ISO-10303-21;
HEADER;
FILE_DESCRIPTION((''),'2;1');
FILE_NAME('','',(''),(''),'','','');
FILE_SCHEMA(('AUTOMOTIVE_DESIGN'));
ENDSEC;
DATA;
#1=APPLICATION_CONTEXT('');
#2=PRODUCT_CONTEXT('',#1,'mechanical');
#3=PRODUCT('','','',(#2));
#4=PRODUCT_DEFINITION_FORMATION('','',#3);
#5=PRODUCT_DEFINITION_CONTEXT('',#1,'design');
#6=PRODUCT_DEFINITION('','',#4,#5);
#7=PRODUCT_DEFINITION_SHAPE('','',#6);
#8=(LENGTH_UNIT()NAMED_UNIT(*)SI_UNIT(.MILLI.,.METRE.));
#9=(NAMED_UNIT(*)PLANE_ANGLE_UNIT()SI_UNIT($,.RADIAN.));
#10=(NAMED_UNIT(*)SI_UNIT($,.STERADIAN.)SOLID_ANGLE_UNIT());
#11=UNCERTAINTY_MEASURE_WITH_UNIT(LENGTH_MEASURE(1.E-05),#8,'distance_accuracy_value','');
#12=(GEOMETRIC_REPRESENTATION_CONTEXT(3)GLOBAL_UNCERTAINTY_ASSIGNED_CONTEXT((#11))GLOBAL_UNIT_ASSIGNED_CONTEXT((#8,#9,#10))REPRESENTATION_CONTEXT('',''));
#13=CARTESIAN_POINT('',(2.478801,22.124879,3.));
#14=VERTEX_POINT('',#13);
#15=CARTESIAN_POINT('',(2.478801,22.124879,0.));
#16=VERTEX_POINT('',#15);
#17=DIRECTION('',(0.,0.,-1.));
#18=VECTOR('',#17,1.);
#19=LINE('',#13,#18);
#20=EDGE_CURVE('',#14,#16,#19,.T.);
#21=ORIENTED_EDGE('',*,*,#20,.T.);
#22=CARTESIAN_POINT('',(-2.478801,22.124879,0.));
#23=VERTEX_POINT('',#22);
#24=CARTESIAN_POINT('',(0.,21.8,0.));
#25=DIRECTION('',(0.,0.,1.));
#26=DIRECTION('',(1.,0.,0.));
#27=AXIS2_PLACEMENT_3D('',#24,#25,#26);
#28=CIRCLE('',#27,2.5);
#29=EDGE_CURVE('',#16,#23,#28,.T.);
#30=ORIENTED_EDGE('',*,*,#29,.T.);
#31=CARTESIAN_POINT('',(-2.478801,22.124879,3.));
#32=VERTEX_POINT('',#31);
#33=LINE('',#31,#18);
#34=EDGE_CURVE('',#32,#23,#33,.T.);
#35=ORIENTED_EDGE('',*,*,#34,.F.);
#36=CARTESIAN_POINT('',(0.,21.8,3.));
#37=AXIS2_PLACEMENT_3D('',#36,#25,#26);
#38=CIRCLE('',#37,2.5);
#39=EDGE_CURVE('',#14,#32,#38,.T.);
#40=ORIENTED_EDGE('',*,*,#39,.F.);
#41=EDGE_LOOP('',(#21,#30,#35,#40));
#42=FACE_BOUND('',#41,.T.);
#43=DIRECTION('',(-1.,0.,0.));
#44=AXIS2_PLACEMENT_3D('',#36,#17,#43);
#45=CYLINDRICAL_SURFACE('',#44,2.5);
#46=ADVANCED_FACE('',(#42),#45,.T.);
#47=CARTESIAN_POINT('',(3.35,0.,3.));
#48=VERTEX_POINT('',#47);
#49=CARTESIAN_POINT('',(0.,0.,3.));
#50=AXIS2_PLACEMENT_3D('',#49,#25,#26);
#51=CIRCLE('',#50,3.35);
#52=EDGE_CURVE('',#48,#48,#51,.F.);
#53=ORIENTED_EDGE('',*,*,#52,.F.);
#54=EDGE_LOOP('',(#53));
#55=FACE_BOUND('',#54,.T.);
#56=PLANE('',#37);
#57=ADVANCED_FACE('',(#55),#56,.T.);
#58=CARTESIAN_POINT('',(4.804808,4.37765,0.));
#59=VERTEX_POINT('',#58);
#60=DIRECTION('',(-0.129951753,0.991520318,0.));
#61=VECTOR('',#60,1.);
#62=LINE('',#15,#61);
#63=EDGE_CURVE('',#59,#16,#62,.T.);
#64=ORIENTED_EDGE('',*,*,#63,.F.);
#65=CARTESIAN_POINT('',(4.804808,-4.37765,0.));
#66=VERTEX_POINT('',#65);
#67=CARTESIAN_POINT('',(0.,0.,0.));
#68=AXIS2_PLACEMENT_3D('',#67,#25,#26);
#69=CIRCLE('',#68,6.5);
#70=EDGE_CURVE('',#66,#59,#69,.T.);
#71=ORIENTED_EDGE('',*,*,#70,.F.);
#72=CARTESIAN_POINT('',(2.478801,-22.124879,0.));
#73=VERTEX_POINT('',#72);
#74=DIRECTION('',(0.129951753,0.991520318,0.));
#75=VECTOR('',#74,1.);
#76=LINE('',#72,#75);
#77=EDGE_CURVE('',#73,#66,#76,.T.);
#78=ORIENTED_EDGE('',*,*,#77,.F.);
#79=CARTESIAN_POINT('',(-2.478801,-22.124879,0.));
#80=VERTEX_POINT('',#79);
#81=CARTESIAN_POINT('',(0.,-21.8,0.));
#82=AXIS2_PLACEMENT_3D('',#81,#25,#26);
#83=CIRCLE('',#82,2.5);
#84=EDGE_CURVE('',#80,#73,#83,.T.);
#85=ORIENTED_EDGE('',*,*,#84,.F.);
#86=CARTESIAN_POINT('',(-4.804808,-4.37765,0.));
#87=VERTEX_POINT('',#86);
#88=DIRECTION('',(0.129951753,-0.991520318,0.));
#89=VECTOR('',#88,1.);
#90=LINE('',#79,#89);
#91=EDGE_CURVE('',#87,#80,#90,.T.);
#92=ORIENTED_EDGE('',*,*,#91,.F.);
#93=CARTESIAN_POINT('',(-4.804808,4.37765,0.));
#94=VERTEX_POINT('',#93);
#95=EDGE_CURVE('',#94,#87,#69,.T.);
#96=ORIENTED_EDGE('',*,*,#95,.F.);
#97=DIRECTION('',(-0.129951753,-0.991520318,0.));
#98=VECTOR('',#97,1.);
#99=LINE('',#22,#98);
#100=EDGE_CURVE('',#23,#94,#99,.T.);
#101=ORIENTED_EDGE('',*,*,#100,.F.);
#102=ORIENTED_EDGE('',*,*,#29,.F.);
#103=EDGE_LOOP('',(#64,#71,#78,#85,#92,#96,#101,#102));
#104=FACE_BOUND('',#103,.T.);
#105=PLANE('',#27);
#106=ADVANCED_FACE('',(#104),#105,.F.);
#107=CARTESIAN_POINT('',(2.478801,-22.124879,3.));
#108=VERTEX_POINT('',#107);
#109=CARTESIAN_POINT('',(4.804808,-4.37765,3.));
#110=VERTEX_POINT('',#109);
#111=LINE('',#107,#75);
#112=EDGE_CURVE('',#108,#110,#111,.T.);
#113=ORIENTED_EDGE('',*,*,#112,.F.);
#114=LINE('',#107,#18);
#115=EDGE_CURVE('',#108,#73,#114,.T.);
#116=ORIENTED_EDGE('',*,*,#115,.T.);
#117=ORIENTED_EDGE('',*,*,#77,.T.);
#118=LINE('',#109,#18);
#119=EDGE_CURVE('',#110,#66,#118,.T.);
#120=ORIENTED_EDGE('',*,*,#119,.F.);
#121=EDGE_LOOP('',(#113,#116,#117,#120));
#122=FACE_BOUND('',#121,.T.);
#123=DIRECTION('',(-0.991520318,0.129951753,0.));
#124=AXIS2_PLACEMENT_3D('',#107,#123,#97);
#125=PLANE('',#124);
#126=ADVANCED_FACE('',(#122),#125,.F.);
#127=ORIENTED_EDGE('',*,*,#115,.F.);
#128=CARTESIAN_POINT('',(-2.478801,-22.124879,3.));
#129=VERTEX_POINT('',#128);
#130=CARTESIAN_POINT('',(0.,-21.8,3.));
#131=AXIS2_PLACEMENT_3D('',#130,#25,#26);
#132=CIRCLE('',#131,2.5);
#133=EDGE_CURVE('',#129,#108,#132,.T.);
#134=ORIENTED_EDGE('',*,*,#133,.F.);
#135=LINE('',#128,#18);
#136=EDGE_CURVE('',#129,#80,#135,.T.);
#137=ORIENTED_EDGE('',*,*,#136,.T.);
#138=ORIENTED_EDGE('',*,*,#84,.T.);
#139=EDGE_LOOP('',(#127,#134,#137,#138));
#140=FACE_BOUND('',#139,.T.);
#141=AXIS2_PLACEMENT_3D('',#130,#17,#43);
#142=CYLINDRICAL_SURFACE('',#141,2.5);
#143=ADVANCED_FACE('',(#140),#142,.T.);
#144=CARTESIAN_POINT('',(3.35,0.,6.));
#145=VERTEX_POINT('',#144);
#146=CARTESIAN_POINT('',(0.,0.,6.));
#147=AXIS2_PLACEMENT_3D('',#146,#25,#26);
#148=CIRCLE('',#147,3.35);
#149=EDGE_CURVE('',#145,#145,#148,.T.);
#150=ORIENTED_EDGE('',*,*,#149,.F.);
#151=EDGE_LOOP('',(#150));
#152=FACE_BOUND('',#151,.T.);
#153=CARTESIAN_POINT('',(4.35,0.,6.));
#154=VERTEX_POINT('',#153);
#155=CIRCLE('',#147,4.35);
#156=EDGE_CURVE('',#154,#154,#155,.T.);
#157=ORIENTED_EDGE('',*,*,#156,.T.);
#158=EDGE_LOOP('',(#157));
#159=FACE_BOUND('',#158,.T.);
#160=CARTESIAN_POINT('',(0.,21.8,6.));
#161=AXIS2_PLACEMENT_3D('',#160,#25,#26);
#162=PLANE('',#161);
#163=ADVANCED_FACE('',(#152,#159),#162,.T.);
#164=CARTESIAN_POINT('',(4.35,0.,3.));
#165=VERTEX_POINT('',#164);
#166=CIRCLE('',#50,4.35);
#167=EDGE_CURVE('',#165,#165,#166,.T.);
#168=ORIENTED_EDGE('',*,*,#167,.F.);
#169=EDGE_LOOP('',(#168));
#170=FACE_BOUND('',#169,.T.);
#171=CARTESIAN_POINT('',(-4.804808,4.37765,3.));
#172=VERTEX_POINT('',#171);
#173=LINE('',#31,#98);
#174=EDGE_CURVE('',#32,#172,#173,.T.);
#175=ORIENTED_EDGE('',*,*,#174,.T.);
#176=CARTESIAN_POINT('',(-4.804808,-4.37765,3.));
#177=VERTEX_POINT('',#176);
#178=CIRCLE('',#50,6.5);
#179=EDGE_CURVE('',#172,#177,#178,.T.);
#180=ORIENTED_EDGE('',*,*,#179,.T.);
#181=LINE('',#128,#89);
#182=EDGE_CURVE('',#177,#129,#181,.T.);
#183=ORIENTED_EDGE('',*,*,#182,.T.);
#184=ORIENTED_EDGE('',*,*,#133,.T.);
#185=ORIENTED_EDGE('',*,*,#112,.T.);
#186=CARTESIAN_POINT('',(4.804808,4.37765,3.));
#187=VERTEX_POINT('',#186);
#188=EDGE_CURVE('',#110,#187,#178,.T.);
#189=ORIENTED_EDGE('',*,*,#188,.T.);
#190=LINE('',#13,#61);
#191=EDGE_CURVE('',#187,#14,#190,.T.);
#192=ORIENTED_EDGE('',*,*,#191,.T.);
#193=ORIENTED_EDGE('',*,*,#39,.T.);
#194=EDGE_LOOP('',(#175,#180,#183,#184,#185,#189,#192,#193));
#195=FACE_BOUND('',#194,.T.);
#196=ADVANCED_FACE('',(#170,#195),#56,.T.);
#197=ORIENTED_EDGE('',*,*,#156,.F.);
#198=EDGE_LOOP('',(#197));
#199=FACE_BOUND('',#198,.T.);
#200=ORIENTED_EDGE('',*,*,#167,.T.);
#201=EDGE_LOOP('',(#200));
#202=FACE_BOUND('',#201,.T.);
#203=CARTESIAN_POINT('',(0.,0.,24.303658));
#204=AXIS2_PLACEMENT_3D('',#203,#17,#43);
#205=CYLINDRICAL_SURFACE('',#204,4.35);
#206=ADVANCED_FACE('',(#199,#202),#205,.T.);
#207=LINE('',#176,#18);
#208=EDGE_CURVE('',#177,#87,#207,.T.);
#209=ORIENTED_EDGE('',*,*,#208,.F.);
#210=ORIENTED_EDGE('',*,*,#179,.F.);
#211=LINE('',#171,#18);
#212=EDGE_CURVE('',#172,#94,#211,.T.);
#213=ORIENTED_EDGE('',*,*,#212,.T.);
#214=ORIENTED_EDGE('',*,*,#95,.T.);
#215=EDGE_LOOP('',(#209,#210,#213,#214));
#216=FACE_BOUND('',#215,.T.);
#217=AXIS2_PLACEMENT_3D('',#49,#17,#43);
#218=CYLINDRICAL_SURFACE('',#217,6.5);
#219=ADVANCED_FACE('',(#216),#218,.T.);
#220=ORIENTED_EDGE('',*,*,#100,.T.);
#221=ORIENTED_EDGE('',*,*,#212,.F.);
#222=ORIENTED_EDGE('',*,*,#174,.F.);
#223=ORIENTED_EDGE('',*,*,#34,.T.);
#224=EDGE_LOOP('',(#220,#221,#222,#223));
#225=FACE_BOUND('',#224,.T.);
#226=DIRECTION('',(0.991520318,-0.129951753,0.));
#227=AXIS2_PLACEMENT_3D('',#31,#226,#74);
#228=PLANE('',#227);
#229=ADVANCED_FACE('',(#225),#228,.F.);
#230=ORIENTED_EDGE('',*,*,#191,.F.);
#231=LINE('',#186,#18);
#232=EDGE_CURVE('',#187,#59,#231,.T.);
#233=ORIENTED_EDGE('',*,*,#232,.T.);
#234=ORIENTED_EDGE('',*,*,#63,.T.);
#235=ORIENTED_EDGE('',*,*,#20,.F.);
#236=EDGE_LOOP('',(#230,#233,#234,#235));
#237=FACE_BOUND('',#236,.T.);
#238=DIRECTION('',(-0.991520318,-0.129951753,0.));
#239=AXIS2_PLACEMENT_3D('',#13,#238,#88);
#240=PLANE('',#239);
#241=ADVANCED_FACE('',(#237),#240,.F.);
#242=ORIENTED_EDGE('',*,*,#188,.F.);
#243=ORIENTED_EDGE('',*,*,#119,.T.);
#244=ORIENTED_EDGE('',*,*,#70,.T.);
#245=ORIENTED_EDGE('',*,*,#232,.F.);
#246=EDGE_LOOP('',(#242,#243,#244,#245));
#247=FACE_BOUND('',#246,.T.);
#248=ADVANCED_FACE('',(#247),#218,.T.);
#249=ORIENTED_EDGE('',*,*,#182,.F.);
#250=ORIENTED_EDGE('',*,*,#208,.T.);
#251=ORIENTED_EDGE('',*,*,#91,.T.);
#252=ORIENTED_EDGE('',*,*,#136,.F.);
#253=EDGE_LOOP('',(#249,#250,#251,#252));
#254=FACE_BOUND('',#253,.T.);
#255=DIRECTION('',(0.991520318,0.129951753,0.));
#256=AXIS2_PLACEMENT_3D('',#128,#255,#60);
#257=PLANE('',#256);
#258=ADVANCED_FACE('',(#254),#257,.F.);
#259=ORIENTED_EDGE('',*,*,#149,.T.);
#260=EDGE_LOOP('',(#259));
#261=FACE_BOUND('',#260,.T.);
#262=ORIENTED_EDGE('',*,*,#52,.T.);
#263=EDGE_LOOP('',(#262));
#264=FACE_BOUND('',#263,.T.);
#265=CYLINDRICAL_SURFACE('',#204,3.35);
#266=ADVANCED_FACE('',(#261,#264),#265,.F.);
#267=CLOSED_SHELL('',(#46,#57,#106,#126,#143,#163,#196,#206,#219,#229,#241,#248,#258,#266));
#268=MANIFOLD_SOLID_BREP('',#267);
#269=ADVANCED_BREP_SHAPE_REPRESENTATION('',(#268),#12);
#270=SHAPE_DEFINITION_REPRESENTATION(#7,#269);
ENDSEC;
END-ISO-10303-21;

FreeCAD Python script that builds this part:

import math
import FreeCAD as App
import Part
import Sketcher
Q = App.Units.Quantity

doc = App.newDocument("Part")
body = doc.addObject("PartDesign::Body", "Body")

sketch1 = doc.addObject("Sketcher::SketchObject", "Sketch")
body.addObject(sketch1)
sketch1.AttachmentSupport = (doc.XY_Plane, [""])
sketch1.MapMode = "FlatFace"
sketch1.addGeometry(Part.LineSegment(App.Vector(-2.5, 22.1, 0), App.Vector(-4.8, 4.4, 0)), False)
sketch1.addGeometry(Part.ArcOfCircle(Part.Circle(App.Vector(0, 0, 0), App.Vector(0, 0, 1), 6.5), math.radians(138), math.radians(222)), False)
sketch1.addGeometry(Part.LineSegment(App.Vector(-4.8, -4.4, 0), App.Vector(-2.5, -22.1, 0)), False)
sketch1.addGeometry(Part.ArcOfCircle(Part.Circle(App.Vector(0, -21.8, 0), App.Vector(0, 0, 1), 2.5), math.radians(-173), math.radians(-7)), False)
sketch1.addGeometry(Part.LineSegment(App.Vector(2.5, -22.1, 0), App.Vector(4.8, -4.4, 0)), False)
sketch1.addGeometry(Part.ArcOfCircle(Part.Circle(App.Vector(0, 0, 0), App.Vector(0, 0, 1), 6.5), math.radians(-42), math.radians(42)), False)
sketch1.addGeometry(Part.LineSegment(App.Vector(4.8, 4.4, 0), App.Vector(2.5, 22.1, 0)), False)
sketch1.addGeometry(Part.ArcOfCircle(Part.Circle(App.Vector(0, 21.8, 0), App.Vector(0, 0, 1), 2.5), math.radians(7), math.radians(173)), False)
sketch1.addConstraint(Sketcher.Constraint("Coincident", 0, 2, 1, 1))
sketch1.addConstraint(Sketcher.Constraint("Coincident", 1, 2, 2, 1))
sketch1.addConstraint(Sketcher.Constraint("Tangent", 2, 2, 3, 1))
sketch1.addConstraint(Sketcher.Constraint("Tangent", 3, 2, 4, 1))
sketch1.addConstraint(Sketcher.Constraint("Coincident", 4, 2, 5, 1))
sketch1.addConstraint(Sketcher.Constraint("Coincident", 5, 2, 6, 1))
sketch1.addConstraint(Sketcher.Constraint("Tangent", 6, 2, 7, 1))
sketch1.addConstraint(Sketcher.Constraint("Tangent", 7, 2, 0, 1))
sketch1.addConstraint(Sketcher.Constraint("Coincident", 1, 3, -1, 1))
sketch1.addConstraint(Sketcher.Constraint("Coincident", 5, 3, -1, 1))
sketch1.addConstraint(Sketcher.Constraint("Equal", 1, 5))
sketch1.addConstraint(Sketcher.Constraint("Equal", 3, 7))
sketch1.addConstraint(Sketcher.Constraint("Symmetric", 3, 3, 7, 3, -1, 1))
sketch1.addConstraint(Sketcher.Constraint("Symmetric", 2, 2, 3, 2, -2))
sketch1.addConstraint(Sketcher.Constraint("Parallel", 0, 4))
sketch1.addConstraint(Sketcher.Constraint("Parallel", 2, 6))
sketch1.addConstraint(Sketcher.Constraint("Radius", 1, Q("6.5 mm")))
sketch1.addConstraint(Sketcher.Constraint("Radius", 3, Q("2.5 mm")))
sketch1.addConstraint(Sketcher.Constraint("DistanceY", 3, 3, -1, 1, Q("21.8 mm")))
sketch1.addConstraint(Sketcher.Constraint("DistanceX", 2, 2, -1, 1, Q("2.478801 mm")))
pad1 = doc.addObject("PartDesign::Pad", "Pad")
body.addObject(pad1)
pad1.Profile = sketch1
pad1.Length = 3

sketch2 = doc.addObject("Sketcher::SketchObject", "Sketch001")
body.addObject(sketch2)
sketch2.AttachmentSupport = (doc.XY_Plane, [""])
sketch2.MapMode = "FlatFace"
sketch2.AttachmentOffset = App.Placement(App.Vector(0, 0, 3), App.Rotation())
sketch2.addGeometry(Part.Circle(App.Vector(0, 0, 0), App.Vector(0, 0, 1), 4.3), False)
sketch2.addGeometry(Part.Circle(App.Vector(0, 0, 0), App.Vector(0, 0, 1), 3.4), False)
sketch2.addConstraint(Sketcher.Constraint("Coincident", 0, 3, -1, 1))
sketch2.addConstraint(Sketcher.Constraint("Coincident", 1, 3, -1, 1))
sketch2.addConstraint(Sketcher.Constraint("Diameter", 0, Q("8.7 mm")))
sketch2.addConstraint(Sketcher.Constraint("Diameter", 1, Q("6.7 mm")))
pad2 = doc.addObject("PartDesign::Pad", "Pad001")
body.addObject(pad2)
pad2.Profile = sketch2
pad2.Length = 3

doc.recompute()
